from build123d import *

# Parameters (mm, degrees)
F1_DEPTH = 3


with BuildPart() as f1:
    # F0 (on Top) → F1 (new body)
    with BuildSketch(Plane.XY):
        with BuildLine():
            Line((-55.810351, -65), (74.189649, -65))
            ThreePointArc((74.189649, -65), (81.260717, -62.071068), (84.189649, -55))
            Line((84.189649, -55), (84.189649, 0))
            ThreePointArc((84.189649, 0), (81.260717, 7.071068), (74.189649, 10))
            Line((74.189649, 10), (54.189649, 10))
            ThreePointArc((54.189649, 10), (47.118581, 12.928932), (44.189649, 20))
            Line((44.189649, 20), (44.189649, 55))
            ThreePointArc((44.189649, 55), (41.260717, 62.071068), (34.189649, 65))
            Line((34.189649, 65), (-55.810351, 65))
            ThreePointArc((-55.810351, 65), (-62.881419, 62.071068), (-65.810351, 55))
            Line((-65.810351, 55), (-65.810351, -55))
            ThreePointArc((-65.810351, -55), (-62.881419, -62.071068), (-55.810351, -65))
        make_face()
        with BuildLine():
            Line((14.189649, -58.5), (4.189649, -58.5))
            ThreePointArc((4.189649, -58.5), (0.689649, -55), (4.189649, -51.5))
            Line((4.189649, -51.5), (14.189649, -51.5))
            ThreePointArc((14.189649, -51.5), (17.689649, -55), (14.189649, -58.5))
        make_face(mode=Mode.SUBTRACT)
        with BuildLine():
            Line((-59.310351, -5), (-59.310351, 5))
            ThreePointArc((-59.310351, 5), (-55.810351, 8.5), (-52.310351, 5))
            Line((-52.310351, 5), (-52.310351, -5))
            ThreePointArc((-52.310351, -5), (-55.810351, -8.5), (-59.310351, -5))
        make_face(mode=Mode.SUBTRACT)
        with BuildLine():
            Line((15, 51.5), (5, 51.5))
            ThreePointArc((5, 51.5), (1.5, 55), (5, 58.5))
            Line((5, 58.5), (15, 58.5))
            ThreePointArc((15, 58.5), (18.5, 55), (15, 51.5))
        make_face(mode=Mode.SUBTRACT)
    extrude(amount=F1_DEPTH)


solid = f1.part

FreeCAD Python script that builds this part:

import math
import FreeCAD as App
import Part
import Sketcher

doc = App.newDocument("Part")
body = doc.addObject("PartDesign::Body", "Body")

# Sketch on XY plane
sketch1 = body.newObject("Sketcher::SketchObject", "Sketch")
sketch1.AttachmentSupport = (doc.getObject("XY_Plane"), [""])
sketch1.MapMode = "FlatFace"
sketch1.addGeometry([
    Part.LineSegment(App.Vector(-55.8, -65, 0), App.Vector(74.2, -65, 0)),  # 0
    Part.ArcOfCircle(Part.Circle(App.Vector(74.2, -55, 0), App.Vector(0, 0, 1), 10), math.radians(-90), math.radians(0)),  # 1
    Part.LineSegment(App.Vector(84.2, -55, 0), App.Vector(84.2, 0, 0)),  # 2
    Part.ArcOfCircle(Part.Circle(App.Vector(74.2, 0, 0), App.Vector(0, 0, 1), 10), math.radians(0), math.radians(90)),  # 3
    Part.LineSegment(App.Vector(74.2, 10, 0), App.Vector(54.2, 10, 0)),  # 4
    Part.ArcOfCircle(Part.Circle(App.Vector(54.2, 20, 0), App.Vector(0, 0, 1), 10), math.radians(180), math.radians(270)),  # 5
    Part.LineSegment(App.Vector(44.2, 20, 0), App.Vector(44.2, 55, 0)),  # 6
    Part.ArcOfCircle(Part.Circle(App.Vector(34.2, 55, 0), App.Vector(0, 0, 1), 10), math.radians(0), math.radians(90)),  # 7
    Part.LineSegment(App.Vector(34.2, 65, 0), App.Vector(-55.8, 65, 0)),  # 8
    Part.ArcOfCircle(Part.Circle(App.Vector(-55.8, 55, 0), App.Vector(0, 0, 1), 10), math.radians(90), math.radians(180)),  # 9
    Part.LineSegment(App.Vector(-65.8, 55, 0), App.Vector(-65.8, -55, 0)),  # 10
    Part.ArcOfCircle(Part.Circle(App.Vector(-55.8, -55, 0), App.Vector(0, 0, 1), 10), math.radians(180), math.radians(270)),  # 11
    Part.ArcOfCircle(Part.Circle(App.Vector(14.2, -55, 0), App.Vector(0, 0, 1), 3.5), math.radians(-90), math.radians(90)),  # 12
    Part.LineSegment(App.Vector(14.2, -58.5, 0), App.Vector(4.2, -58.5, 0)),  # 13
    Part.ArcOfCircle(Part.Circle(App.Vector(4.2, -55, 0), App.Vector(0, 0, 1), 3.5), math.radians(90), math.radians(270)),  # 14
    Part.LineSegment(App.Vector(4.2, -51.5, 0), App.Vector(14.2, -51.5, 0)),  # 15
    Part.ArcOfCircle(Part.Circle(App.Vector(-55.8, -5, 0), App.Vector(0, 0, 1), 3.5), math.radians(180), math.radians(360)),  # 16
    Part.LineSegment(App.Vector(-59.3, -5, 0), App.Vector(-59.3, 5, 0)),  # 17
    Part.ArcOfCircle(Part.Circle(App.Vector(-55.8, 5, 0), App.Vector(0, 0, 1), 3.5), math.radians(0), math.radians(180)),  # 18
    Part.LineSegment(App.Vector(-52.3, 5, 0), App.Vector(-52.3, -5, 0)),  # 19
    Part.ArcOfCircle(Part.Circle(App.Vector(15, 55, 0), App.Vector(0, 0, 1), 3.5), math.radians(-90), math.radians(90)),  # 20
    Part.LineSegment(App.Vector(15, 51.5, 0), App.Vector(5, 51.5, 0)),  # 21
    Part.ArcOfCircle(Part.Circle(App.Vector(5, 55, 0), App.Vector(0, 0, 1), 3.5), math.radians(90), math.radians(270)),  # 22
    Part.LineSegment(App.Vector(5, 58.5, 0), App.Vector(15, 58.5, 0)),  # 23
], False)
sketch1.addConstraint([
    Sketcher.Constraint("Tangent", 0, 2, 1, 1),
    Sketcher.Constraint("Tangent", 1, 2, 2, 1),
    Sketcher.Constraint("Tangent", 2, 2, 3, 1),
    Sketcher.Constraint("Tangent", 3, 2, 4, 1),
    Sketcher.Constraint("Tangent", 4, 2, 5, 2),
    Sketcher.Constraint("Tangent", 5, 1, 6, 1),
    Sketcher.Constraint("Tangent", 6, 2, 7, 1),
    Sketcher.Constraint("Tangent", 7, 2, 8, 1),
    Sketcher.Constraint("Tangent", 8, 2, 9, 1),
    Sketcher.Constraint("Tangent", 9, 2, 10, 1),
    Sketcher.Constraint("Tangent", 10, 2, 11, 1),
    Sketcher.Constraint("Tangent", 11, 2, 0, 1),
    Sketcher.Constraint("Tangent", 12, 1, 13, 1),
    Sketcher.Constraint("Tangent", 13, 2, 14, 2),
    Sketcher.Constraint("Tangent", 14, 1, 15, 1),
    Sketcher.Constraint("Tangent", 15, 2, 12, 2),
    Sketcher.Constraint("Tangent", 16, 1, 17, 1),
    Sketcher.Constraint("Tangent", 17, 2, 18, 2),
    Sketcher.Constraint("Tangent", 18, 1, 19, 1),
    Sketcher.Constraint("Tangent", 19, 2, 16, 2),
    Sketcher.Constraint("Tangent", 20, 1, 21, 1),
    Sketcher.Constraint("Tangent", 21, 2, 22, 2),
    Sketcher.Constraint("Tangent", 22, 1, 23, 1),
    Sketcher.Constraint("Tangent", 23, 2, 20, 2),
    Sketcher.Constraint("Horizontal", 0),
    Sketcher.Constraint("Vertical", 2),
    Sketcher.Constraint("Horizontal", 4),
    Sketcher.Constraint("Vertical", 6),
    Sketcher.Constraint("Horizontal", 8),
    Sketcher.Constraint("Vertical", 10),
    Sketcher.Constraint("Horizontal", 13),
    Sketcher.Constraint("Horizontal", 15),
    Sketcher.Constraint("Vertical", 17),
    Sketcher.Constraint("Vertical", 19),
    Sketcher.Constraint("Horizontal", 21),
    Sketcher.Constraint("Horizontal", 23),
    Sketcher.Constraint("Equal", 1, 3),
    Sketcher.Constraint("Equal", 3, 5),
    Sketcher.Constraint("Equal", 5, 7),
    Sketcher.Constraint("Equal", 7, 9),
    Sketcher.Constraint("Equal", 9, 11),
    Sketcher.Constraint("Equal", 14, 16),
    Sketcher.Constraint("Equal", 18, 20),
    Sketcher.Constraint("PointOnObject", 3, 3, -1),
    Sketcher.Constraint("Horizontal", 11, 3, 12, 3),
    Sketcher.Constraint("Horizontal", 9, 3, 20, 3),
    Sketcher.Constraint("Vertical", 11, 3, 16, 3),
    Sketcher.Constraint("Equal", 15, 21),
    Sketcher.Constraint("Equal", 23, 17),
    Sketcher.Constraint("Radius", 1, 9.999999),
    Sketcher.Constraint("Radius", 12, 3.5),
    Sketcher.Constraint("DistanceX", 0, 1, 0, 2, 130.0),
    Sketcher.Constraint("DistanceX", 4, 2, 4, 1, 20.0),
    Sketcher.Constraint("DistanceX", 13, 2, 13, 1, 10.0),
    Sketcher.Constraint("DistanceY", 2, 1, 2, 2, 55.0),
    Sketcher.Constraint("DistanceY", 6, 1, 6, 2, 35.0),
    Sketcher.Constraint("DistanceY", 16, 3, -1, 1, 5.0),
    Sketcher.Constraint("DistanceX", -1, 1, 20, 3, 15.0),
    Sketcher.Constraint("DistanceX", 12, 3, 1, 3, 60.000001),
    Sketcher.Constraint("DistanceX", -1, 1, 1, 3, 74.18965),
])
pad1 = body.newObject("PartDesign::Pad", "Pad")
pad1.Profile = sketch1
pad1.Length = 3

doc.recompute()
